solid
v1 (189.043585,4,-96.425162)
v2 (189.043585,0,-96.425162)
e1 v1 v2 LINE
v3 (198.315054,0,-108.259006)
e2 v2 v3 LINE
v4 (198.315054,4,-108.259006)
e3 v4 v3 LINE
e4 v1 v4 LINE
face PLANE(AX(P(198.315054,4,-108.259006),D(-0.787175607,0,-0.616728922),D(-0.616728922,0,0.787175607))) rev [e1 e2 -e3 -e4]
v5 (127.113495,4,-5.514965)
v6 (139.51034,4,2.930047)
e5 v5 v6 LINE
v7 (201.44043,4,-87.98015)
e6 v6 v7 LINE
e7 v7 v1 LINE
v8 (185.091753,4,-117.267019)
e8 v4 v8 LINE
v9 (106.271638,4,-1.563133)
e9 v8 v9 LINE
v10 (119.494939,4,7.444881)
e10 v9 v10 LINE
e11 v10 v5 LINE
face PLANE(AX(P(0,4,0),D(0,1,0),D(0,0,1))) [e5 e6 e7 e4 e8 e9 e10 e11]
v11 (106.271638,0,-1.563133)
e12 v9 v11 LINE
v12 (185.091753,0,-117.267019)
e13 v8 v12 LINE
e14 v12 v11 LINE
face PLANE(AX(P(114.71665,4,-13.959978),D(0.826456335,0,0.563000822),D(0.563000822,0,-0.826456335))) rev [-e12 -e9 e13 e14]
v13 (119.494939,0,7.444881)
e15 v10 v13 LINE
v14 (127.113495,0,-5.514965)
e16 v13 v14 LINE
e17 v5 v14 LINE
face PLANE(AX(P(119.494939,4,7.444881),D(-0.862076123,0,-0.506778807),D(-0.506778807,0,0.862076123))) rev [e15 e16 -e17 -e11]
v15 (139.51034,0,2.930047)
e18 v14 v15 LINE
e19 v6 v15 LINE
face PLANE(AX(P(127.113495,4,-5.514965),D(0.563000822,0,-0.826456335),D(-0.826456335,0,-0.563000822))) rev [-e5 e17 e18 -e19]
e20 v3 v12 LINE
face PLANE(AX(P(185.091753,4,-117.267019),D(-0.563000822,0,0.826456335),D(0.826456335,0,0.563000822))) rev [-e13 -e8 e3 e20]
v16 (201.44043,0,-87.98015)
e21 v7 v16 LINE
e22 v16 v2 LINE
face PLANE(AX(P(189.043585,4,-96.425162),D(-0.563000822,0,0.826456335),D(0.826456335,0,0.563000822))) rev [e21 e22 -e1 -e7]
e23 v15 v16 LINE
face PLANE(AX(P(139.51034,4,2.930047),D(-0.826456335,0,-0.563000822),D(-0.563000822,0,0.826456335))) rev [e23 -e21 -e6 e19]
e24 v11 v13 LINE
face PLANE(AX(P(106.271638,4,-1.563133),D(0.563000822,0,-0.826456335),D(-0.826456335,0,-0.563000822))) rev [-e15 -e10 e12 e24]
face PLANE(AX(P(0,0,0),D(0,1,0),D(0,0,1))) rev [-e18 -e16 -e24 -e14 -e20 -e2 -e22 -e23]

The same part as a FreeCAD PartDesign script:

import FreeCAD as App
import Part
import Sketcher
from FreeCAD import Vector
Q = App.Units.Quantity


def add_polygon(sketch, points):
    """Adds a closed chain of lines whose ends are joined by coincident constraints."""
    first, n = sketch.GeometryCount, len(points)
    for a, b in zip(points, points[1:] + points[:1]):
        sketch.addGeometry(Part.LineSegment(App.Vector(*a, 0), App.Vector(*b, 0)), False)
    for i in range(n):
        sketch.addConstraint(Sketcher.Constraint("Coincident", first + i, 2, first + (i + 1) % n, 1))

doc = App.newDocument("Part")
params = doc.addObject("Spreadsheet::Sheet", "Params")
for row, (alias, value) in enumerate([
    ("sketch1_length", "110 mm"),
    ("sketch1_length2", "15 mm"),
    ("sketch1_length3", "16 mm"),
    ("pad1_length", "4 mm"),
], start=1):
    params.set(f"A{row}", alias)
    params.set(f"B{row}", "=" + value)
    params.setAlias(f"B{row}", alias)

body = doc.addObject("PartDesign::Body", "Body")

sketch1 = doc.addObject("Sketcher::SketchObject", "Sketch")
body.addObject(sketch1)
sketch1.AttachmentSupport = (doc.XZ_Plane, [""])
sketch1.MapMode = "FlatFace"
add_polygon(sketch1, [(140, 3), (201, -88), (189, -96), (198, -108), (185, -117), (177, -105), (115, -14), (106, -2), (119, 7), (127, -6)])
sketch1.addConstraint([
    Sketcher.Constraint("Perpendicular", 0, 1),
    Sketcher.Constraint("Parallel", 1, 3),
    Sketcher.Constraint("Perpendicular", 3, 4),
    Sketcher.Constraint("Parallel", 4, 5),
    Sketcher.Constraint("Parallel", 5, 6),
    Sketcher.Constraint("Perpendicular", 6, 7),
    Sketcher.Constraint("Parallel", 7, 9),
    Sketcher.Constraint("Equal", 1, 4),
    Sketcher.Constraint("Equal", 0, 5),
    Sketcher.Constraint("Equal", 4, 6),
    Sketcher.Constraint("Equal", 3, 7),
    Sketcher.Constraint("Equal", 2, 8),
    Sketcher.Constraint("Equal", 6, 9),
    Sketcher.Constraint("Distance", 0, Q("110 mm")),
    Sketcher.Constraint("Distance", 1, Q("15 mm")),
    Sketcher.Constraint("Distance", 3, Q("16 mm")),
    Sketcher.Constraint("DistanceX", 3, 2, 2, 2, Q("13.223301 mm")),
    Sketcher.Constraint("DistanceX", 7, 2, 9, 2, Q("20.015401 mm")),
    Sketcher.Constraint("DistanceX", -1, 1, 0, 2, Q("201.44043 mm")),
    Sketcher.Constraint("DistanceY", 0, 2, -1, 1, Q("87.98015 mm")),
])
sketch1.setExpression("Constraints[23]", "Params.sketch1_length")
sketch1.setExpression("Constraints[24]", "Params.sketch1_length2")
sketch1.setExpression("Constraints[25]", "Params.sketch1_length3")
pad1 = doc.addObject("PartDesign::Pad", "Pad")
body.addObject(pad1)
pad1.Profile = sketch1
pad1.setExpression("Length", "Params.pad1_length")
pad1.Reversed = True

doc.recompute()
